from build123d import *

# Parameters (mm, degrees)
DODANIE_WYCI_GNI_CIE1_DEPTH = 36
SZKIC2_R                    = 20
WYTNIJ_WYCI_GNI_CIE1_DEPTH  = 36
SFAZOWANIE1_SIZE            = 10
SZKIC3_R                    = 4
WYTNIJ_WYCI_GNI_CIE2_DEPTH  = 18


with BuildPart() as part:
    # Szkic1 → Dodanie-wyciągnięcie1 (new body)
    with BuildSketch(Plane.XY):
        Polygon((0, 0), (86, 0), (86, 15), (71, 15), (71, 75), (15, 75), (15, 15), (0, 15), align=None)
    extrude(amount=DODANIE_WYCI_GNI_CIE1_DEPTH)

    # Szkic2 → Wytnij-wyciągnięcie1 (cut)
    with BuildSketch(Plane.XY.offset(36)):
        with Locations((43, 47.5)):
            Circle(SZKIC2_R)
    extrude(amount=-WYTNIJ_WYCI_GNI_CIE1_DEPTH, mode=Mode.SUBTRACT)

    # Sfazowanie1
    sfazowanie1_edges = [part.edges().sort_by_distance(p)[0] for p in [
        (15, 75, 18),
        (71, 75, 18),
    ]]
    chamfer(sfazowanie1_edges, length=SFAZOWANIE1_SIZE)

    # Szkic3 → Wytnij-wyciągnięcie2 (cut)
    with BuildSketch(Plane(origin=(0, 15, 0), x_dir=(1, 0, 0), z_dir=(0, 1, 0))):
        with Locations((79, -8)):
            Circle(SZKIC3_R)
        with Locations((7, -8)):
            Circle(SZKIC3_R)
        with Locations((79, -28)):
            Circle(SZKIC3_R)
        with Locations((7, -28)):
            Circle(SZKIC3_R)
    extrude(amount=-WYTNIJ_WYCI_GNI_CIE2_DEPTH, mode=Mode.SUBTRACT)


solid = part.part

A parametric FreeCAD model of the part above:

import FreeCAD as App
import Part
import Sketcher

V = App.Vector
Q = App.Units.Quantity


def edges_at(feature, points):
    """Names of the edges that pass closest to the given points."""
    edges = feature.Shape.Edges
    near = lambda p: min(range(len(edges)), key=lambda i: edges[i].distToShape(Part.Vertex(*p))[0])
    return sorted({f"Edge{near(p) + 1}" for p in points})


def add_polygon(sketch, points):
    """Adds a closed chain of lines whose ends are joined by coincident constraints."""
    first, n = sketch.GeometryCount, len(points)
    for a, b in zip(points, points[1:] + points[:1]):
        sketch.addGeometry(Part.LineSegment(App.Vector(*a, 0), App.Vector(*b, 0)), False)
    for i in range(n):
        sketch.addConstraint(Sketcher.Constraint("Coincident", first + i, 2, first + (i + 1) % n, 1))

doc = App.newDocument("Part")
body = doc.addObject("PartDesign::Body", "Body")

# Sketch on XY plane
sketch1 = body.newObject("Sketcher::SketchObject", "Sketch")
sketch1.AttachmentSupport = (doc.getObject("XY_Plane"), [""])
sketch1.MapMode = "FlatFace"
add_polygon(sketch1, [(0, 0), (86, 0), (86, 15), (71, 15), (71, 75), (15, 75), (15, 15), (0, 15)])  # lines 0-7
sketch1.addConstraint([
    Sketcher.Constraint("Horizontal", 0),
    Sketcher.Constraint("Vertical", 1),
    Sketcher.Constraint("Horizontal", 2),
    Sketcher.Constraint("Vertical", 3),
    Sketcher.Constraint("Horizontal", 4),
    Sketcher.Constraint("Vertical", 5),
    Sketcher.Constraint("Horizontal", 6),
    Sketcher.Constraint("Vertical", 7),
    Sketcher.Constraint("Coincident", 7, 2, -1, 1),
    Sketcher.Constraint("Horizontal", 2, 2, 5, 2),
    Sketcher.Constraint("Equal", 2, 6),
    Sketcher.Constraint("Equal", 6, 1),
    Sketcher.Constraint("DistanceX", 0, 1, 0, 2, Q("86 mm")),
    Sketcher.Constraint("DistanceX", 2, 2, 2, 1, Q("15 mm")),
    Sketcher.Constraint("DistanceY", 3, 1, 3, 2, Q("60 mm")),
])
pad1 = body.newObject("PartDesign::Pad", "Pad")
pad1.Profile = sketch1
pad1.Length = 36

# Sketch on XY plane
sketch2 = body.newObject("Sketcher::SketchObject", "Sketch001")
sketch2.AttachmentSupport = (doc.getObject("XY_Plane"), [""])
sketch2.MapMode = "FlatFace"
sketch2.AttachmentOffset = App.Placement(V(0, 0, 36), App.Rotation())
sketch2.addGeometry(Part.Circle(V(43, 47.5, 0), V(0, 0, 1), 20), False)
sketch2.addConstraint([
    Sketcher.Constraint("Diameter", 0, Q("40 mm")),
    Sketcher.Constraint("DistanceX", -1, 1, 0, 3, Q("43 mm")),
    Sketcher.Constraint("DistanceY", -1, 1, 0, 3, Q("47.5 mm")),
])
pocket1 = body.newObject("PartDesign::Pocket", "Pocket")
pocket1.Profile = sketch2
pocket1.Length = 36
doc.recompute()

chamfer = body.newObject("PartDesign::Chamfer", "Chamfer")
chamfer.Base = (pocket1, edges_at(pocket1, [(15, 75, 18), (71, 75, 18)]))
chamfer.Size = 10

# Sketch on XZ plane
sketch3 = body.newObject("Sketcher::SketchObject", "Sketch002")
sketch3.AttachmentSupport = (doc.getObject("XZ_Plane"), [""])
sketch3.MapMode = "FlatFace"
sketch3.AttachmentOffset = App.Placement(V(0, 0, -15), App.Rotation())
sketch3.addGeometry([
    Part.Circle(V(79, 8, 0), V(0, 0, 1), 4),
    Part.Circle(V(7, 8, 0), V(0, 0, 1), 4),
    Part.Circle(V(79, 28, 0), V(0, 0, 1), 4),
    Part.Circle(V(7, 28, 0), V(0, 0, 1), 4),
], False)
sketch3.addConstraint([
    Sketcher.Constraint("Equal", 0, 1),
    Sketcher.Constraint("Equal", 1, 2),
    Sketcher.Constraint("Equal", 2, 3),
    Sketcher.Constraint("Horizontal", 0, 3, 1, 3),
    Sketcher.Constraint("Horizontal", 2, 3, 3, 3),
    Sketcher.Constraint("Vertical", 0, 3, 2, 3),
    Sketcher.Constraint("Vertical", 1, 3, 3, 3),
    Sketcher.Constraint("Diameter", 0, Q("8 mm")),
    Sketcher.Constraint("DistanceX", -1, 1, 0, 3, Q("79 mm")),
    Sketcher.Constraint("DistanceY", -1, 1, 0, 3, Q("8 mm")),
    Sketcher.Constraint("DistanceX", -1, 1, 1, 3, Q("7 mm")),
    Sketcher.Constraint("DistanceY", -1, 1, 2, 3, Q("28 mm")),
])
pocket2 = body.newObject("PartDesign::Pocket", "Pocket001")
pocket2.Profile = sketch3
pocket2.Length = 18
pocket2.Reversed = True

doc.recompute()
